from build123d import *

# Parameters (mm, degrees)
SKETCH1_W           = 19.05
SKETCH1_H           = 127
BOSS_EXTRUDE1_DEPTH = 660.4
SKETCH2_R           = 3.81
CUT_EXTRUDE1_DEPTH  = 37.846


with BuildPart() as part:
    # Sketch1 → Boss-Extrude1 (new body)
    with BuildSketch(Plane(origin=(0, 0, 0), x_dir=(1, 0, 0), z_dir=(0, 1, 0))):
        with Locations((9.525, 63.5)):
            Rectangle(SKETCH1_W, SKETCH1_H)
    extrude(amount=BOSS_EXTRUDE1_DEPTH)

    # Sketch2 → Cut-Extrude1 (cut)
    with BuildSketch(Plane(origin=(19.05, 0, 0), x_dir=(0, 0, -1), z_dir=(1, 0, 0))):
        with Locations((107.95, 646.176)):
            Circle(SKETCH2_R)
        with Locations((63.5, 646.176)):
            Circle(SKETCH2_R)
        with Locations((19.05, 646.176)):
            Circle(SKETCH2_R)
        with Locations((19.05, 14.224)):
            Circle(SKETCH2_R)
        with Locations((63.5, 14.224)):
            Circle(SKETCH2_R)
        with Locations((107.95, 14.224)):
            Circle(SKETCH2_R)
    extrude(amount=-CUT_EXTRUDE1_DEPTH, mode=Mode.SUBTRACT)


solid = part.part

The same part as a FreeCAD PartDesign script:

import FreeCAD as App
import Part
import Sketcher

V = App.Vector
Q = App.Units.Quantity

doc = App.newDocument("Part")
params = doc.addObject("Spreadsheet::Sheet", "Params")
for row, (alias, value) in enumerate([
    ("sketch1_height", "5 in"),
    ("sketch1_width", "0.75 in"),
    ("pad1_length", "26 in"),
    ("sketch2_diameter", "0.3 in"),
    ("pocket1_length", "1.49 in"),
], start=1):
    params.set(f"A{row}", alias)
    params.set(f"B{row}", "=" + value)
    params.setAlias(f"B{row}", alias)

body = doc.addObject("PartDesign::Body", "Body")

# Sketch on XZ plane
sketch1 = body.newObject("Sketcher::SketchObject", "Sketch")
sketch1.AttachmentSupport = (doc.getObject("XZ_Plane"), [""])
sketch1.MapMode = "FlatFace"
sketch1.addGeometry(Part.LineSegment(V(0, -127, 0), V(0, 0, 0)), False)
sketch1.addGeometry(Part.LineSegment(V(0, 0, 0), V(19, 0, 0)), False)
sketch1.addGeometry(Part.LineSegment(V(19, 0, 0), V(19, -127, 0)), False)
sketch1.addGeometry(Part.LineSegment(V(19, -127, 0), V(0, -127, 0)), False)
sketch1.addConstraint(Sketcher.Constraint("Coincident", 0, 2, 1, 1))
sketch1.addConstraint(Sketcher.Constraint("Coincident", 1, 2, 2, 1))
sketch1.addConstraint(Sketcher.Constraint("Coincident", 2, 2, 3, 1))
sketch1.addConstraint(Sketcher.Constraint("Coincident", 3, 2, 0, 1))
sketch1.addConstraint(Sketcher.Constraint("Vertical", 0))
sketch1.addConstraint(Sketcher.Constraint("Horizontal", 1))
sketch1.addConstraint(Sketcher.Constraint("Vertical", 2))
sketch1.addConstraint(Sketcher.Constraint("Horizontal", 3))
sketch1.addConstraint(Sketcher.Constraint("Coincident", 0, 2, -1, 1))
sketch1.addConstraint(Sketcher.Constraint("DistanceY", 0, 1, 0, 2, Q("5 in")))
sketch1.addConstraint(Sketcher.Constraint("DistanceX", 1, 1, 1, 2, Q("0.75 in")))
sketch1.setExpression("Constraints[9]", "Params.sketch1_height")
sketch1.setExpression("Constraints[10]", "Params.sketch1_width")
pad1 = body.newObject("PartDesign::Pad", "Pad")
pad1.Profile = sketch1
pad1.setExpression("Length", "Params.pad1_length")
pad1.Reversed = True

# Sketch on YZ plane
sketch2 = body.newObject("Sketcher::SketchObject", "Sketch001")
sketch2.AttachmentSupport = (doc.getObject("YZ_Plane"), [""])
sketch2.MapMode = "FlatFace"
sketch2.AttachmentOffset = App.Placement(V(0, 0, 0.75 * 25.4), App.Rotation())
sketch2.addGeometry(Part.Circle(V(646.2, -108, 0), V(0, 0, 1), 3.8), False)
sketch2.addGeometry(Part.Circle(V(646.2, -63.5, 0), V(0, 0, 1), 3.8), False)
sketch2.addGeometry(Part.Circle(V(646.2, -19.1, 0), V(0, 0, 1), 3.8), False)
sketch2.addGeometry(Part.Circle(V(14.2, -19.1, 0), V(0, 0, 1), 3.8), False)
sketch2.addGeometry(Part.Circle(V(14.2, -63.5, 0), V(0, 0, 1), 3.8), False)
sketch2.addGeometry(Part.Circle(V(14.2, -108, 0), V(0, 0, 1), 3.8), False)
sketch2.addConstraint(Sketcher.Constraint("Equal", 0, 1))
sketch2.addConstraint(Sketcher.Constraint("Equal", 1, 2))
sketch2.addConstraint(Sketcher.Constraint("Equal", 2, 3))
sketch2.addConstraint(Sketcher.Constraint("Equal", 3, 4))
sketch2.addConstraint(Sketcher.Constraint("Equal", 4, 5))
sketch2.addConstraint(Sketcher.Constraint("Horizontal", 2, 3, 3, 3))
sketch2.addConstraint(Sketcher.Constraint("Horizontal", 1, 3, 4, 3))
sketch2.addConstraint(Sketcher.Constraint("Horizontal", 0, 3, 5, 3))
sketch2.addConstraint(Sketcher.Constraint("Vertical", 0, 3, 1, 3))
sketch2.addConstraint(Sketcher.Constraint("Vertical", 1, 3, 2, 3))
sketch2.addConstraint(Sketcher.Constraint("Vertical", 3, 3, 4, 3))
sketch2.addConstraint(Sketcher.Constraint("Vertical", 4, 3, 5, 3))
sketch2.addConstraint(Sketcher.Constraint("Diameter", 0, Q("0.3 in")))
sketch2.addConstraint(Sketcher.Constraint("DistanceY", 1, 3, -1, 1, Q("2.5 in")))
sketch2.addConstraint(Sketcher.Constraint("DistanceY", 0, 3, 2, 3, Q("3.5 in")))
sketch2.addConstraint(Sketcher.Constraint("DistanceX", -1, 1, 0, 3, Q("25.44 in")))
sketch2.addConstraint(Sketcher.Constraint("DistanceY", 0, 3, -1, 1, Q("4.25 in")))
sketch2.addConstraint(Sketcher.Constraint("DistanceX", -1, 1, 3, 3, Q("0.56 in")))
sketch2.setExpression("Constraints[12]", "Params.sketch2_diameter")
pocket1 = body.newObject("PartDesign::Pocket", "Pocket")
pocket1.Profile = sketch2
pocket1.setExpression("Length", "Params.pocket1_length")

doc.recompute()
